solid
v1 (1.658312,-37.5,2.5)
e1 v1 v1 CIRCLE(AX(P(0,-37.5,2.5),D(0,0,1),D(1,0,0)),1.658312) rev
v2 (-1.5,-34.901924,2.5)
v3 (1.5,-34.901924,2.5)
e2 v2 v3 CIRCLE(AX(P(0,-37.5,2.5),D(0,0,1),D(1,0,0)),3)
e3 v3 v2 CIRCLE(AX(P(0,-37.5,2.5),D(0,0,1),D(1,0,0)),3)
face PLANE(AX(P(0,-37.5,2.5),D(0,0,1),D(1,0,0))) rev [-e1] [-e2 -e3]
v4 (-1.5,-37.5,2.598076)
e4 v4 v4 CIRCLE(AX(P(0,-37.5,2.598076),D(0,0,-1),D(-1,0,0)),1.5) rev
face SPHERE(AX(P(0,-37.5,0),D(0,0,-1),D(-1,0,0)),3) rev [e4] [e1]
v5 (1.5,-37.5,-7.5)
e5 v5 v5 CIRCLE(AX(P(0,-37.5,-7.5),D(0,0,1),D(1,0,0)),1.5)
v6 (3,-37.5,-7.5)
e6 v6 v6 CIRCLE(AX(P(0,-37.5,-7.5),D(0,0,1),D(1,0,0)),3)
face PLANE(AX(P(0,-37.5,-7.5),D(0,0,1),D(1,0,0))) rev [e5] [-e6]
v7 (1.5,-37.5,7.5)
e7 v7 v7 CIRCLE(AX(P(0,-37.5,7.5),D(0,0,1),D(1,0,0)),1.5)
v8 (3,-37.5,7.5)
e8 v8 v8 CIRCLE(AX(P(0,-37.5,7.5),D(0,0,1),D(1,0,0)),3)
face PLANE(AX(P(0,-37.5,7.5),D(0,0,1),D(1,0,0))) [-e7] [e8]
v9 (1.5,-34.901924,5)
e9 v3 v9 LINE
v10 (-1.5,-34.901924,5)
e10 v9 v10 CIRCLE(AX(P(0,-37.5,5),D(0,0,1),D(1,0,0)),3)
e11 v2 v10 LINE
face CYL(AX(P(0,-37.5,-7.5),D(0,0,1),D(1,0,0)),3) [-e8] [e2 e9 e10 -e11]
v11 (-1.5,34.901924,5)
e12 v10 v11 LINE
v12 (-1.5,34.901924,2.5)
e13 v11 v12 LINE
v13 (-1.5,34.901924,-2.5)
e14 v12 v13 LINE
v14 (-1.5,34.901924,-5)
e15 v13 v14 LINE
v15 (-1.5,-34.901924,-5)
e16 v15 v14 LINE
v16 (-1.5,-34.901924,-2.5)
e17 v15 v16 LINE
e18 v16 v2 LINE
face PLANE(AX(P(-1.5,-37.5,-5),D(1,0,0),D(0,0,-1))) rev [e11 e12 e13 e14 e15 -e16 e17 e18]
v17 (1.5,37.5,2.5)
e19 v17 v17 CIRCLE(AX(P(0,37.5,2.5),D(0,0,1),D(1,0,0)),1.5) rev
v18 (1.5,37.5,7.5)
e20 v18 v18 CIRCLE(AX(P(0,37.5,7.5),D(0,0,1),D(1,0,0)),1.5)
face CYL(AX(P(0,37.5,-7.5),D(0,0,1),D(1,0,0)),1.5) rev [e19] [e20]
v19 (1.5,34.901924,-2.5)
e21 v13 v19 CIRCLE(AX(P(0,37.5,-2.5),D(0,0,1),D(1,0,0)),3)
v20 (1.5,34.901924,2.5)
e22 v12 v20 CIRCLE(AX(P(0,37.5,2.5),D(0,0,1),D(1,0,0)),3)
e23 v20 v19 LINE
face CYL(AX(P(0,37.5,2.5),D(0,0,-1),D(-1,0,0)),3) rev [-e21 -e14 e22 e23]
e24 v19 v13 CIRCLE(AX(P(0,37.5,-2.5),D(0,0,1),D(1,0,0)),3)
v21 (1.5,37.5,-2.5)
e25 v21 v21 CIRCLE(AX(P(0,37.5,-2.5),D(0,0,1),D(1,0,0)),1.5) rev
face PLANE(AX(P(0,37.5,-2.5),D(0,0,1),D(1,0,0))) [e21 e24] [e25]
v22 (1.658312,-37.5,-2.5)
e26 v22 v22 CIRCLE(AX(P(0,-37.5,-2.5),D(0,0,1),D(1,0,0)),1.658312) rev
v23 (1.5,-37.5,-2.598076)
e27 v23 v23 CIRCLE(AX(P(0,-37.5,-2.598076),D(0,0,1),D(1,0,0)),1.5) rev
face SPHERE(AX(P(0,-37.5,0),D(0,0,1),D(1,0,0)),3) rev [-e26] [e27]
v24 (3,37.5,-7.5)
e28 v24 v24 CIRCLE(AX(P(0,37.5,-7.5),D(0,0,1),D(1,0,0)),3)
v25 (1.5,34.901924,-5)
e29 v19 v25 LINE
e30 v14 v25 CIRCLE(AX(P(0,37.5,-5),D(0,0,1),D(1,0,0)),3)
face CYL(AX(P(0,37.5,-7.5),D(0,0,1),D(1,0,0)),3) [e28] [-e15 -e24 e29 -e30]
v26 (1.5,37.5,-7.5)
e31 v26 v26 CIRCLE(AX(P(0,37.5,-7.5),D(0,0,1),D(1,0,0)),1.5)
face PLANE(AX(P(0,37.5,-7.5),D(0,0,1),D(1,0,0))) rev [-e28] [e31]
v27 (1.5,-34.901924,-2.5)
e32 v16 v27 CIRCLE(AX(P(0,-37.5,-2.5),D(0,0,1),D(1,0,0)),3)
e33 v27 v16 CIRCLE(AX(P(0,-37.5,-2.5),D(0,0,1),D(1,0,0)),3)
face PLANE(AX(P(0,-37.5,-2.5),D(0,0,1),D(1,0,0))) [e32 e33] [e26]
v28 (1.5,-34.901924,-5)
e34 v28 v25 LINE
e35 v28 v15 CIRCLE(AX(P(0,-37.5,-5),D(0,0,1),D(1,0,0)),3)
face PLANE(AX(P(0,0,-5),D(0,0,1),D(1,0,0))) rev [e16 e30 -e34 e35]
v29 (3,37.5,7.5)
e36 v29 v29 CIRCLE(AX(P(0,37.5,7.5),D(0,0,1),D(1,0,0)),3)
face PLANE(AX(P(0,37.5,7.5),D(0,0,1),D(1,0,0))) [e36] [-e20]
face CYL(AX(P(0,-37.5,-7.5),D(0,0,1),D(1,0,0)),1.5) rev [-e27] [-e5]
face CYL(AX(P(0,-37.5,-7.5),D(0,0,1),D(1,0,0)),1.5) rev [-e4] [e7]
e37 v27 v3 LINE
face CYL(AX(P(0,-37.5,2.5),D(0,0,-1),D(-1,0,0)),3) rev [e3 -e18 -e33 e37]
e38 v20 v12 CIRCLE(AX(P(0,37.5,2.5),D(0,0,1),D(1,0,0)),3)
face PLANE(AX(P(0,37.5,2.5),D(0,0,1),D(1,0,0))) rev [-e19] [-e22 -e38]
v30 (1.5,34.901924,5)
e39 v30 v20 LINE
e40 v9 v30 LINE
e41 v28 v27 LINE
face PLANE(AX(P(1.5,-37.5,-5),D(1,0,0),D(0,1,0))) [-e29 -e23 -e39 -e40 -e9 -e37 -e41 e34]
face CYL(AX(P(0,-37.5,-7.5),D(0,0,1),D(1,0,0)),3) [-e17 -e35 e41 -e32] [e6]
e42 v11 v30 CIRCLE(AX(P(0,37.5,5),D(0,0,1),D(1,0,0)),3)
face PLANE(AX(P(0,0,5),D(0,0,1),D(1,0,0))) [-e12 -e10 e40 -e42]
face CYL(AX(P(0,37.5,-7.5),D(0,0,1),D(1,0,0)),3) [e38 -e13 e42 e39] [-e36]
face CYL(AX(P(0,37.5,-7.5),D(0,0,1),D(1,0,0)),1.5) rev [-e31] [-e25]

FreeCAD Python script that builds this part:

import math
import FreeCAD as App
import Part
import Sketcher
from FreeCAD import Vector
Q = App.Units.Quantity

doc = App.newDocument("Part")
body = doc.addObject("PartDesign::Body", "Body")

# Sketch on XY plane
sketch1 = doc.addObject("Sketcher::SketchObject", "Sketch")
body.addObject(sketch1)
sketch1.AttachmentSupport = (doc.XY_Plane, [""])
sketch1.MapMode = "FlatFace"
sketch1.addGeometry([
    Part.LineSegment(Vector(-1.5, 37.5, 0), Vector(-1.5, -37.5, 0)),
    Part.LineSegment(Vector(-1.5, -37.5, 0), Vector(1.5, -37.5, 0)),
    Part.LineSegment(Vector(1.5, -37.5, 0), Vector(1.5, 37.5, 0)),
    Part.LineSegment(Vector(1.5, 37.5, 0), Vector(-1.5, 37.5, 0)),
], False)
sketch1.addConstraint([
    Sketcher.Constraint("Coincident", 0, 2, 1, 1),
    Sketcher.Constraint("Coincident", 1, 2, 2, 1),
    Sketcher.Constraint("Coincident", 2, 2, 3, 1),
    Sketcher.Constraint("Coincident", 3, 2, 0, 1),
    Sketcher.Constraint("Vertical", 0),
    Sketcher.Constraint("Horizontal", 1),
    Sketcher.Constraint("Vertical", 2),
    Sketcher.Constraint("Horizontal", 3),
    Sketcher.Constraint("Symmetric", 0, 2, 2, 2, -1, 1),
    Sketcher.Constraint("DistanceX", 1, 1, 1, 2, Q("3 mm")),
    Sketcher.Constraint("DistanceY", 0, 2, 0, 1, Q("75 mm")),
])
pad1 = doc.addObject("PartDesign::Pad", "Pad")
body.addObject(pad1)
pad1.Profile = sketch1
pad1.Type = "TwoLengths"
pad1.Length = 5
pad1.Length2 = 5

# Sketch on XY plane
sketch2 = doc.addObject("Sketcher::SketchObject", "Sketch001")
body.addObject(sketch2)
sketch2.AttachmentSupport = (doc.XY_Plane, [""])
sketch2.MapMode = "FlatFace"
sketch2.addGeometry([
    Part.Circle(Vector(0, 37.5, 0), Vector(0, 0, 1), 3),
    Part.Circle(Vector(0, 37.5, 0), Vector(0, 0, 1), 1.5),
    Part.Circle(Vector(0, -37.5, 0), Vector(0, 0, 1), 3),
    Part.Circle(Vector(0, -37.5, 0), Vector(0, 0, 1), 1.5),
], False)
sketch2.addConstraint([
    Sketcher.Constraint("Coincident", 1, 3, 0, 3),
    Sketcher.Constraint("Coincident", 3, 3, 2, 3),
    Sketcher.Constraint("Equal", 0, 2),
    Sketcher.Constraint("Equal", 1, 3),
    Sketcher.Constraint("Symmetric", 0, 3, 2, 3, -1, 1),
    Sketcher.Constraint("PointOnObject", 0, 3, -2),
    Sketcher.Constraint("Diameter", 0, Q("6 mm")),
    Sketcher.Constraint("Diameter", 1, Q("3 mm")),
    Sketcher.Constraint("DistanceY", 2, 3, 0, 3, Q("75 mm")),
])
pad2 = doc.addObject("PartDesign::Pad", "Pad001")
body.addObject(pad2)
pad2.Profile = sketch2
pad2.Type = "TwoLengths"
pad2.Length = 7.5
pad2.Length2 = 7.5

# Sketch on XY plane
sketch3 = doc.addObject("Sketcher::SketchObject", "Sketch002")
body.addObject(sketch3)
sketch3.AttachmentSupport = (doc.XY_Plane, [""])
sketch3.MapMode = "FlatFace"
sketch3.addGeometry([
    Part.Circle(Vector(0, 37.5, 0), Vector(0, 0, 1), 3),
    Part.Circle(Vector(0, -37.5, 0), Vector(0, 0, 1), 3),
], False)
sketch3.addConstraint([
    Sketcher.Constraint("Equal", 0, 1),
    Sketcher.Constraint("Symmetric", 0, 3, 1, 3, -1, 1),
    Sketcher.Constraint("PointOnObject", 0, 3, -2),
    Sketcher.Constraint("Diameter", 0, Q("6 mm")),
    Sketcher.Constraint("DistanceY", 1, 3, 0, 3, Q("75 mm")),
])
pocket1 = doc.addObject("PartDesign::Pocket", "Pocket")
body.addObject(pocket1)
pocket1.Profile = sketch3
pocket1.Type = "TwoLengths"
pocket1.Length = 2.5
pocket1.Length2 = 2.5
pocket1.Reversed = True

# Sketch on XY plane
sketch4 = doc.addObject("Sketcher::SketchObject", "Sketch003")
body.addObject(sketch4)
sketch4.AttachmentSupport = (doc.XY_Plane, [""])
sketch4.MapMode = "FlatFace"
sketch4.addGeometry([
    Part.Circle(Vector(0, 37.5, 0), Vector(0, 0, 1), 1.5),
    Part.Circle(Vector(0, -37.5, 0), Vector(0, 0, 1), 1.5),
], False)
sketch4.addConstraint([
    Sketcher.Constraint("Equal", 0, 1),
    Sketcher.Constraint("Symmetric", 0, 3, 1, 3, -1, 1),
    Sketcher.Constraint("PointOnObject", 0, 3, -2),
    Sketcher.Constraint("Diameter", 0, Q("3 mm")),
    Sketcher.Constraint("DistanceY", 1, 3, 0, 3, Q("75 mm")),
])
pocket2 = doc.addObject("PartDesign::Pocket", "Pocket001")
body.addObject(pocket2)
pocket2.Profile = sketch4
pocket2.Type = "ThroughAll"
pocket2.Midplane = True

# Sketch on XY plane
sketch5 = doc.addObject("Sketcher::SketchObject", "Sketch004")
body.addObject(sketch5)
sketch5.AttachmentSupport = (doc.XY_Plane, [""])
sketch5.MapMode = "FlatFace"
sketch5.addGeometry([
    Part.ArcOfCircle(Part.Circle(Vector(0, -37.5, 0), Vector(0, 0, 1), 3), math.radians(180), math.radians(360)),
    Part.LineSegment(Vector(3, -37.5, 0), Vector(1.5, -37.5, 0)),
    Part.ArcOfCircle(Part.Circle(Vector(0, -37.5, 0), Vector(0, 0, 1), 1.5), math.radians(0), math.radians(180)),
    Part.LineSegment(Vector(-1.5, -37.5, 0), Vector(-3, -37.5, 0)),
], False)
sketch5.addGeometry(Part.LineSegment(Vector(3, -37.5, 0), Vector(-3, -37.5, 0)), True)  # axis
sketch5.addConstraint([
    Sketcher.Constraint("Coincident", 0, 2, 1, 1),
    Sketcher.Constraint("Coincident", 1, 2, 2, 1),
    Sketcher.Constraint("Coincident", 2, 2, 3, 1),
    Sketcher.Constraint("Coincident", 3, 2, 0, 1),
    Sketcher.Constraint("Horizontal", 1),
    Sketcher.Constraint("Horizontal", 3),
    Sketcher.Constraint("Horizontal", 4),
    Sketcher.Constraint("Coincident", 2, 3, 0, 3),
    Sketcher.Constraint("Coincident", 4, 1, 0, 2),
    Sketcher.Constraint("Coincident", 4, 2, 3, 2),
    Sketcher.Constraint("PointOnObject", 0, 3, -2),
    Sketcher.Constraint("Horizontal", 2, 3, 0, 2),
    Sketcher.Constraint("Radius", 0, Q("3 mm")),
    Sketcher.Constraint("Radius", 2, Q("1.5 mm")),
    Sketcher.Constraint("DistanceY", 0, 3, -1, 1, Q("37.5 mm")),
])
groove = doc.addObject("PartDesign::Groove", "Groove")
body.addObject(groove)
groove.Profile = sketch5
groove.ReferenceAxis = (sketch5, ["Axis0"])
groove.Angle = 360

doc.recompute()
